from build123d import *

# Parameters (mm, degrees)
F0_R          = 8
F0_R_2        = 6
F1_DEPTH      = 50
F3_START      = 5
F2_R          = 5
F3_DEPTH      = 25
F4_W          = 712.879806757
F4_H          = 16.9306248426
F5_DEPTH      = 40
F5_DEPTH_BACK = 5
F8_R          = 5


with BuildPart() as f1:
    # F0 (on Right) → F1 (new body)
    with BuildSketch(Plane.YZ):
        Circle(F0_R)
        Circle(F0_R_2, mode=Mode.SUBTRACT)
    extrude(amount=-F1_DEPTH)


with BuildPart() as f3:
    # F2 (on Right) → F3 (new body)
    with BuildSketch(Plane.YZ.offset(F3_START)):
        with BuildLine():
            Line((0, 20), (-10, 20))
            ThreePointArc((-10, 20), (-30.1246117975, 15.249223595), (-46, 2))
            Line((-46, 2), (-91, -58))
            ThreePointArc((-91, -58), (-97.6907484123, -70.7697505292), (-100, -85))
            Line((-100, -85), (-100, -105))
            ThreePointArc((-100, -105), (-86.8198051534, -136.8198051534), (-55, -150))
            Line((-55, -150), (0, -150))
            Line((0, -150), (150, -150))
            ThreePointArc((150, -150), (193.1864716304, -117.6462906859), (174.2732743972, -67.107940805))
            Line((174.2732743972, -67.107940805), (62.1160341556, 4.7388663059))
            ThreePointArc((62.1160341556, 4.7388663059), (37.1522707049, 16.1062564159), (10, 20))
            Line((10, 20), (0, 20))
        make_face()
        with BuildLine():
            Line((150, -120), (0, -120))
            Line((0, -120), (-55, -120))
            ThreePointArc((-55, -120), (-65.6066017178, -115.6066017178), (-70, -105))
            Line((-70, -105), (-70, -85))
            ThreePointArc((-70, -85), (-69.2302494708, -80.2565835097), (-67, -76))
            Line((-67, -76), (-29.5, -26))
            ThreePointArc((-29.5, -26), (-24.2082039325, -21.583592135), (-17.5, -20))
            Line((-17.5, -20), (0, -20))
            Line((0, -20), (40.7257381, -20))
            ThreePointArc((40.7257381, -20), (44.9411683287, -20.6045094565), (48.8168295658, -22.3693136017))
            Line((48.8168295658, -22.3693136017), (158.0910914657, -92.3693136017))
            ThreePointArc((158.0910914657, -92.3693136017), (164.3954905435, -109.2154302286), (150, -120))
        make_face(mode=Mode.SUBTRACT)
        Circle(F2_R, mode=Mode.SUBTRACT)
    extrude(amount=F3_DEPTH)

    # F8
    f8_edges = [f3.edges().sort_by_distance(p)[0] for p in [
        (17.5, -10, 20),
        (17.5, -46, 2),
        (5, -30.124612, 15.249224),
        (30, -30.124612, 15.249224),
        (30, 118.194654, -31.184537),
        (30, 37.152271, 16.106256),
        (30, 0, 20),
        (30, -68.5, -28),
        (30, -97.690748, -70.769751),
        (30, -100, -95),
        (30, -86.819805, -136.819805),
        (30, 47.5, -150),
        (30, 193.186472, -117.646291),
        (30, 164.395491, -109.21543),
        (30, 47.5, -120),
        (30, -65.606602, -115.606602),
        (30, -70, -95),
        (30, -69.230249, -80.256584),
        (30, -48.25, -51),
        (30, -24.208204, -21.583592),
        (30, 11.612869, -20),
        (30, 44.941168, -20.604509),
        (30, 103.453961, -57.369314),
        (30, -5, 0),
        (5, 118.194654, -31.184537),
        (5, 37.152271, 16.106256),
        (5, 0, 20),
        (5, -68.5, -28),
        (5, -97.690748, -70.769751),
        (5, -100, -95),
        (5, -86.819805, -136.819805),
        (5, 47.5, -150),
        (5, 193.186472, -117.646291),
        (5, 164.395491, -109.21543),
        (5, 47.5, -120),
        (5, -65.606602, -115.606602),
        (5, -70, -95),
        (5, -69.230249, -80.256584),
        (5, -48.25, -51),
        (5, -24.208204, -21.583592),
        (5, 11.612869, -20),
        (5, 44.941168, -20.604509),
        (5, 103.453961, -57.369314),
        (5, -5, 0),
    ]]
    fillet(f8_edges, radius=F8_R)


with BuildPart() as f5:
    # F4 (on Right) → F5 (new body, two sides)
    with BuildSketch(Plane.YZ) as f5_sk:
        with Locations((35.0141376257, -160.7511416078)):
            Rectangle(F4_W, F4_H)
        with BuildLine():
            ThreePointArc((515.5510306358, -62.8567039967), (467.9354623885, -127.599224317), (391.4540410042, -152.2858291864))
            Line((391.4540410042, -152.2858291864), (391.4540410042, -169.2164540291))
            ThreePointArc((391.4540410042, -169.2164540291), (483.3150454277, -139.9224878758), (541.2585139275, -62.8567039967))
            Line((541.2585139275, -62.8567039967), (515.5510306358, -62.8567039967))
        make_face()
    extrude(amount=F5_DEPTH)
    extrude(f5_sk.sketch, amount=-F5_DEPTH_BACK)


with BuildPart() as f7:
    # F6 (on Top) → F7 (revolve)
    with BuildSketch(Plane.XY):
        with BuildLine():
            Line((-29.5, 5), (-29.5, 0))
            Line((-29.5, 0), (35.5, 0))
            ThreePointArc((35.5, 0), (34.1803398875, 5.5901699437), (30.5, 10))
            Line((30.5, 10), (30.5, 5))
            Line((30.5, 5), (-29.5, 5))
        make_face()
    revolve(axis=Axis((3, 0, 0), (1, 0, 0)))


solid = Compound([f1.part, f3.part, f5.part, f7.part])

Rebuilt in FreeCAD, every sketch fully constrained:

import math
import FreeCAD as App
import Part
import Sketcher

V = App.Vector
Q = App.Units.Quantity


def edges_at(feature, points):
    """Names of the edges that pass closest to the given points."""
    edges = feature.Shape.Edges
    near = lambda p: min(range(len(edges)), key=lambda i: edges[i].distToShape(Part.Vertex(*p))[0])
    return sorted({f"Edge{near(p) + 1}" for p in points})

doc = App.newDocument("Part")
params = doc.addObject("Spreadsheet::Sheet", "Params")
for row, (alias, value) in enumerate([
    ("sketch1_diameter", "16 mm"),
    ("sketch1_diameter2", "12 mm"),
    ("pad1_length", "50 mm"),
    ("sketch2_diameter", "10 mm"),
    ("sketch2_radius", "45 mm"),
    ("sketch2_radius2", "15 mm"),
    ("sketch2_width", "205 mm"),
    ("sketch2_width2", "20 mm"),
    ("pad2_length", "25 mm"),
    ("fillet_radius", "5 mm"),
    ("pad3_length", "40 mm"),
    ("pad3_length2", "5 mm"),
    ("sketch4_radius", "12.5 mm"),
    ("sketch4_width", "65 mm"),
    ("sketch4_width2", "60 mm"),
    ("revolution_angle", "360 deg"),
], start=1):
    params.set(f"A{row}", alias)
    params.set(f"B{row}", "=" + value)
    params.setAlias(f"B{row}", alias)

body = doc.addObject("PartDesign::Body", "Body")

# Sketch on YZ plane
sketch1 = body.newObject("Sketcher::SketchObject", "Sketch")
sketch1.AttachmentSupport = (doc.getObject("YZ_Plane"), [""])
sketch1.MapMode = "FlatFace"
sketch1.addGeometry([
    Part.Circle(V(0, 0, 0), V(0, 0, 1), 8),
    Part.Circle(V(0, 0, 0), V(0, 0, 1), 6),
], False)
sketch1.addConstraint([
    Sketcher.Constraint("Coincident", 0, 3, -1, 1),
    Sketcher.Constraint("Coincident", 1, 3, -1, 1),
    Sketcher.Constraint("Diameter", 0, Q("16 mm")),
    Sketcher.Constraint("Diameter", 1, Q("12 mm")),
])
sketch1.setExpression("Constraints[2]", "Params.sketch1_diameter")
sketch1.setExpression("Constraints[3]", "Params.sketch1_diameter2")
pad1 = body.newObject("PartDesign::Pad", "Pad")
pad1.Profile = sketch1
pad1.setExpression("Length", "Params.pad1_length")
pad1.Reversed = True
body2 = doc.addObject("PartDesign::Body", "Body001")

# Sketch on YZ plane
sketch2 = body2.newObject("Sketcher::SketchObject", "Sketch001")
sketch2.AttachmentSupport = (doc.getObject("YZ_Plane001"), [""])
sketch2.MapMode = "FlatFace"
sketch2.AttachmentOffset = App.Placement(V(0, 0, 5), App.Rotation())
sketch2.addGeometry([
    Part.ArcOfCircle(Part.Circle(V(-10, -25, 0), V(0, 0, 1), 45), math.radians(90), math.radians(143)),  # 0
    Part.LineSegment(V(-46, 2, 0), V(-91, -58, 0)),  # 1
    Part.ArcOfCircle(Part.Circle(V(-55, -85, 0), V(0, 0, 1), 45), math.radians(143), math.radians(180)),  # 2
    Part.LineSegment(V(-100, -85, 0), V(-100, -105, 0)),  # 3
    Part.ArcOfCircle(Part.Circle(V(-55, -105, 0), V(0, 0, 1), 45), math.radians(180), math.radians(270)),  # 4
    Part.LineSegment(V(-55, -150, 0), V(150, -150, 0)),  # 5
    Part.ArcOfCircle(Part.Circle(V(150, -105, 0), V(0, 0, 1), 45), math.radians(-90), math.radians(57)),  # 6
    Part.LineSegment(V(174, -67, 0), V(62, 5, 0)),  # 7
    Part.ArcOfCircle(Part.Circle(V(10, -77, 0), V(0, 0, 1), 97), math.radians(57), math.radians(90)),  # 8
    Part.LineSegment(V(10, 20, 0), V(-10, 20, 0)),  # 9
    Part.ArcOfCircle(Part.Circle(V(150, -105, 0), V(0, 0, 1), 15), math.radians(-90), math.radians(57)),  # 10
    Part.LineSegment(V(150, -120, 0), V(-55, -120, 0)),  # 11
    Part.ArcOfCircle(Part.Circle(V(-55, -105, 0), V(0, 0, 1), 15), math.radians(180), math.radians(270)),  # 12
    Part.LineSegment(V(-70, -105, 0), V(-70, -85, 0)),  # 13
    Part.ArcOfCircle(Part.Circle(V(-55, -85, 0), V(0, 0, 1), 15), math.radians(143), math.radians(180)),  # 14
    Part.LineSegment(V(-67, -76, 0), V(-30, -26, 0)),  # 15
    Part.ArcOfCircle(Part.Circle(V(-18, -35, 0), V(0, 0, 1), 15), math.radians(90), math.radians(143)),  # 16
    Part.LineSegment(V(-18, -20, 0), V(41, -20, 0)),  # 17
    Part.ArcOfCircle(Part.Circle(V(41, -35, 0), V(0, 0, 1), 15), math.radians(57), math.radians(90)),  # 18
    Part.LineSegment(V(49, -22, 0), V(158, -92, 0)),  # 19
    Part.Circle(V(0, 0, 0), V(0, 0, 1), 5),  # 20
], False)
sketch2.addConstraint([
    Sketcher.Constraint("Tangent", 0, 2, 1, 1),
    Sketcher.Constraint("Tangent", 1, 2, 2, 1),
    Sketcher.Constraint("Tangent", 2, 2, 3, 1),
    Sketcher.Constraint("Tangent", 3, 2, 4, 1),
    Sketcher.Constraint("Tangent", 4, 2, 5, 1),
    Sketcher.Constraint("Tangent", 5, 2, 6, 1),
    Sketcher.Constraint("Tangent", 6, 2, 7, 1),
    Sketcher.Constraint("Tangent", 7, 2, 8, 1),
    Sketcher.Constraint("Tangent", 8, 2, 9, 1),
    Sketcher.Constraint("Tangent", 9, 2, 0, 1),
    Sketcher.Constraint("Tangent", 10, 1, 11, 1),
    Sketcher.Constraint("Tangent", 11, 2, 12, 2),
    Sketcher.Constraint("Tangent", 12, 1, 13, 1),
    Sketcher.Constraint("Tangent", 13, 2, 14, 2),
    Sketcher.Constraint("Tangent", 14, 1, 15, 1),
    Sketcher.Constraint("Tangent", 15, 2, 16, 2),
    Sketcher.Constraint("Tangent", 16, 1, 17, 1),
    Sketcher.Constraint("Tangent", 17, 2, 18, 2),
    Sketcher.Constraint("Tangent", 18, 1, 19, 1),
    Sketcher.Constraint("Tangent", 19, 2, 10, 2),
    Sketcher.Constraint("Vertical", 3),
    Sketcher.Constraint("Horizontal", 5),
    Sketcher.Constraint("Horizontal", 9),
    Sketcher.Constraint("Horizontal", 11),
    Sketcher.Constraint("Vertical", 13),
    Sketcher.Constraint("Horizontal", 17),
    Sketcher.Constraint("Coincident", 20, 3, -1, 1),
    Sketcher.Constraint("Coincident", 10, 3, 6, 3),
    Sketcher.Constraint("Coincident", 12, 3, 4, 3),
    Sketcher.Constraint("Coincident", 14, 3, 2, 3),
    Sketcher.Constraint("Equal", 0, 2),
    Sketcher.Constraint("Equal", 2, 4),
    Sketcher.Constraint("Equal", 4, 6),
    Sketcher.Constraint("Equal", 14, 16),
    Sketcher.Constraint("Equal", 16, 18),
    Sketcher.Constraint("Parallel", 1, 15),
    Sketcher.Constraint("Parallel", 7, 19),
    Sketcher.Constraint("Equal", 9, 3),
    Sketcher.Constraint("Diameter", 20, Q("10 mm")),
    Sketcher.Constraint("Radius", 0, Q("45 mm")),
    Sketcher.Constraint("Radius", 10, Q("15 mm")),
    Sketcher.Constraint("DistanceX", 5, 1, 5, 2, Q("205 mm")),
    Sketcher.Constraint("DistanceX", 9, 2, 9, 1, Q("20 mm")),
    Sketcher.Constraint("Distance", 1, Q("75 mm")),
    Sketcher.Constraint("DistanceX", 0, 3, -1, 1, Q("10 mm")),
    Sketcher.Constraint("DistanceY", 0, 3, -1, 1, Q("25 mm")),
    Sketcher.Constraint("DistanceX", 2, 3, -1, 1, Q("55 mm")),
    Sketcher.Constraint("DistanceY", 16, 3, -1, 1, Q("35 mm")),
    Sketcher.Constraint("Radius", 8, Q("96.617436 mm")),
])
sketch2.setExpression("Constraints[38]", "Params.sketch2_diameter")
sketch2.setExpression("Constraints[39]", "Params.sketch2_radius")
sketch2.setExpression("Constraints[40]", "Params.sketch2_radius2")
sketch2.setExpression("Constraints[41]", "Params.sketch2_width")
sketch2.setExpression("Constraints[42]", "Params.sketch2_width2")
pad2 = body2.newObject("PartDesign::Pad", "Pad001")
pad2.Profile = sketch2
pad2.setExpression("Length", "Params.pad2_length")
doc.recompute()

fillet = body2.newObject("PartDesign::Fillet", "Fillet")
fillet.Base = (pad2, edges_at(pad2, [
    (17.5, -10, 20),
    (17.5, -46, 2),
    (5, -30.125, 15.249),
    (30, -30.125, 15.249),
    (30, 118.195, -31.185),
    (30, 37.152, 16.106),
    (30, 0, 20),
    (30, -68.5, -28),
    (30, -97.691, -70.77),
    (30, -100, -95),
    (30, -86.82, -136.82),
    (30, 47.5, -150),
    (30, 193.186, -117.646),
    (30, 164.395, -109.215),
    (30, 47.5, -120),
    (30, -65.607, -115.607),
    (30, -70, -95),
    (30, -69.23, -80.257),
    (30, -48.25, -51),
    (30, -24.208, -21.584),
    (30, 11.613, -20),
    (30, 44.941, -20.605),
    (30, 103.454, -57.369),
    (30, -5, 0),
    (5, 118.195, -31.185),
    (5, 37.152, 16.106),
    (5, 0, 20),
    (5, -68.5, -28),
    (5, -97.691, -70.77),
    (5, -100, -95),
    (5, -86.82, -136.82),
    (5, 47.5, -150),
    (5, 193.186, -117.646),
    (5, 164.395, -109.215),
    (5, 47.5, -120),
    (5, -65.607, -115.607),
    (5, -70, -95),
    (5, -69.23, -80.257),
    (5, -48.25, -51),
    (5, -24.208, -21.584),
    (5, 11.613, -20),
    (5, 44.941, -20.605),
    (5, 103.454, -57.369),
    (5, -5, 0),
]))
fillet.setExpression("Radius", "Params.fillet_radius")
body3 = doc.addObject("PartDesign::Body", "Body002")

# Sketch on YZ plane
sketch3 = body3.newObject("Sketcher::SketchObject", "Sketch002")
sketch3.AttachmentSupport = (doc.getObject("YZ_Plane002"), [""])
sketch3.MapMode = "FlatFace"
sketch3.addGeometry([
    Part.LineSegment(V(-321.425766, -152.285829, 0), V(-321.425766, -169.216454, 0)),  # 0
    Part.LineSegment(V(-321.425766, -169.216454, 0), V(391.454041, -169.216454, 0)),  # 1
    Part.ArcOfCircle(Part.Circle(V(391.454041, -10.539057, 0), V(0, 0, 1), 158.677397), math.radians(-90), math.radians(-19.251221)),  # 2
    Part.LineSegment(V(541.258514, -62.856704, 0), V(515.551031, -62.856704, 0)),  # 3
    Part.ArcOfCircle(Part.Circle(V(391.454041, -21.469212, 0), V(0, 0, 1), 130.816617), math.radians(-90), math.radians(-18.444019)),  # 4
    Part.LineSegment(V(391.454041, -152.285829, 0), V(-321.425766, -152.285829, 0)),  # 5
], False)
sketch3.addConstraint([
    Sketcher.Constraint("Coincident", 0, 2, 1, 1),
    Sketcher.Constraint("Tangent", 1, 2, 2, 1),
    Sketcher.Constraint("Coincident", 2, 2, 3, 1),
    Sketcher.Constraint("Coincident", 3, 2, 4, 2),
    Sketcher.Constraint("Tangent", 4, 1, 5, 1),
    Sketcher.Constraint("Coincident", 5, 2, 0, 1),
    Sketcher.Constraint("Vertical", 0),
    Sketcher.Constraint("Horizontal", 1),
    Sketcher.Constraint("Horizontal", 3),
    Sketcher.Constraint("Horizontal", 5),
    Sketcher.Constraint("Vertical", 2, 3, 4, 3),
    Sketcher.Constraint("Radius", 2, Q("158.677397 mm")),
    Sketcher.Constraint("Radius", 4, Q("130.816617 mm")),
    Sketcher.Constraint("DistanceX", 1, 1, 1, 2, Q("712.879807 mm")),
    Sketcher.Constraint("DistanceX", 3, 2, 3, 1, Q("25.707483 mm")),
    Sketcher.Constraint("DistanceY", 0, 2, 0, 1, Q("16.930625 mm")),
    Sketcher.Constraint("DistanceX", -1, 1, 2, 3, Q("391.454041 mm")),
    Sketcher.Constraint("DistanceY", 4, 1, -1, 1, Q("152.285829 mm")),
])
pad3 = body3.newObject("PartDesign::Pad", "Pad002")
pad3.Profile = sketch3
pad3.Type = "TwoLengths"
pad3.setExpression("Length", "Params.pad3_length")
pad3.setExpression("Length2", "Params.pad3_length2")
body4 = doc.addObject("PartDesign::Body", "Body003")

# Sketch on XY plane
sketch4 = body4.newObject("Sketcher::SketchObject", "Sketch003")
sketch4.AttachmentSupport = (doc.getObject("XY_Plane003"), [""])
sketch4.MapMode = "FlatFace"
sketch4.addGeometry([
    Part.LineSegment(V(-30, 5, 0), V(-30, 0, 0)),  # 0
    Part.LineSegment(V(-30, 0, 0), V(36, 0, 0)),  # 1
    Part.ArcOfCircle(Part.Circle(V(23, 0, 0), V(0, 0, 1), 12), math.radians(0), math.radians(53)),  # 2
    Part.LineSegment(V(30, 10, 0), V(30, 5, 0)),  # 3
    Part.LineSegment(V(30, 5, 0), V(-30, 5, 0)),  # 4
], False)
sketch4.addConstraint([
    Sketcher.Constraint("Coincident", 0, 2, 1, 1),
    Sketcher.Constraint("Coincident", 1, 2, 2, 1),
    Sketcher.Constraint("Coincident", 2, 2, 3, 1),
    Sketcher.Constraint("Coincident", 3, 2, 4, 1),
    Sketcher.Constraint("Coincident", 4, 2, 0, 1),
    Sketcher.Constraint("Vertical", 0),
    Sketcher.Constraint("Horizontal", 1),
    Sketcher.Constraint("Vertical", 3),
    Sketcher.Constraint("Horizontal", 4),
    Sketcher.Constraint("PointOnObject", 2, 3, -1),
    Sketcher.Constraint("PointOnObject", 0, 2, -1),
    Sketcher.Constraint("Equal", 0, 3),
    Sketcher.Constraint("Radius", 2, Q("12.5 mm")),
    Sketcher.Constraint("DistanceX", 1, 1, 1, 2, Q("65 mm")),
    Sketcher.Constraint("DistanceX", 4, 2, 4, 1, Q("60 mm")),
    Sketcher.Constraint("DistanceX", -1, 1, 2, 3, Q("23 mm")),
])
sketch4.setExpression("Constraints[12]", "Params.sketch4_radius")
sketch4.setExpression("Constraints[13]", "Params.sketch4_width")
sketch4.setExpression("Constraints[14]", "Params.sketch4_width2")
revolution = body4.newObject("PartDesign::Revolution", "Revolution")
revolution.Profile = sketch4
revolution.ReferenceAxis = (sketch4, ["H_Axis"])
revolution.setExpression("Angle", "Params.revolution_angle")

doc.recompute()
